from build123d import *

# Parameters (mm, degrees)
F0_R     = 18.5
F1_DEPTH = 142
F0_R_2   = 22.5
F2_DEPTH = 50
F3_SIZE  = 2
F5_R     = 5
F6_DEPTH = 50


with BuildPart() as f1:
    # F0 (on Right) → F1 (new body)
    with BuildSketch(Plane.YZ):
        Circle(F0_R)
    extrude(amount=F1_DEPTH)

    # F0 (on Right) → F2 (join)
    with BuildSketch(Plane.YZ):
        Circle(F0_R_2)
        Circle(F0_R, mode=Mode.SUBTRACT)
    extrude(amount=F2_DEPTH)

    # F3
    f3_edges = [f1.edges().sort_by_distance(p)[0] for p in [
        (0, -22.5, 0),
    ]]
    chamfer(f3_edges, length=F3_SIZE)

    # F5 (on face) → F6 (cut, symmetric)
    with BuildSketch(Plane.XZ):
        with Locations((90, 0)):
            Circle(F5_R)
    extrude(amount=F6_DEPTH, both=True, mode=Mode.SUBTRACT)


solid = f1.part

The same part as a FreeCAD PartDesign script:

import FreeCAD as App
import Part
import Sketcher

V = App.Vector
Q = App.Units.Quantity


def edges_at(feature, points):
    """Names of the edges that pass closest to the given points."""
    edges = feature.Shape.Edges
    near = lambda p: min(range(len(edges)), key=lambda i: edges[i].distToShape(Part.Vertex(*p))[0])
    return sorted({f"Edge{near(p) + 1}" for p in points})

doc = App.newDocument("Part")
body = doc.addObject("PartDesign::Body", "Body")

# Sketch on YZ plane
sketch1 = body.newObject("Sketcher::SketchObject", "Sketch")
sketch1.AttachmentSupport = (doc.getObject("YZ_Plane"), [""])
sketch1.MapMode = "FlatFace"
sketch1.addGeometry(Part.Circle(V(0, 0, 0), V(0, 0, 1), 18.5), False)
sketch1.addConstraint(Sketcher.Constraint("Coincident", 0, 3, -1, 1))
sketch1.addConstraint(Sketcher.Constraint("Diameter", 0, Q("37 mm")))
pad1 = body.newObject("PartDesign::Pad", "Pad")
pad1.Profile = sketch1
pad1.Length = 142

# Sketch on YZ plane
sketch2 = body.newObject("Sketcher::SketchObject", "Sketch001")
sketch2.AttachmentSupport = (doc.getObject("YZ_Plane"), [""])
sketch2.MapMode = "FlatFace"
sketch2.addGeometry(Part.Circle(V(0, 0, 0), V(0, 0, 1), 22.5), False)
sketch2.addGeometry(Part.Circle(V(0, 0, 0), V(0, 0, 1), 18.5), False)
sketch2.addConstraint(Sketcher.Constraint("Coincident", 0, 3, -1, 1))
sketch2.addConstraint(Sketcher.Constraint("Coincident", 1, 3, -1, 1))
sketch2.addConstraint(Sketcher.Constraint("Diameter", 0, Q("45 mm")))
sketch2.addConstraint(Sketcher.Constraint("Diameter", 1, Q("37 mm")))
pad2 = body.newObject("PartDesign::Pad", "Pad001")
pad2.Profile = sketch2
pad2.Length = 50
doc.recompute()

chamfer = body.newObject("PartDesign::Chamfer", "Chamfer")
chamfer.Base = (pad2, edges_at(pad2, [(0, -22.5, 0)]))
chamfer.Size = 2

# Sketch on XZ plane
sketch3 = body.newObject("Sketcher::SketchObject", "Sketch002")
sketch3.AttachmentSupport = (doc.getObject("XZ_Plane"), [""])
sketch3.MapMode = "FlatFace"
sketch3.addGeometry(Part.Circle(V(90, 0, 0), V(0, 0, 1), 5), False)
sketch3.addConstraint(Sketcher.Constraint("PointOnObject", 0, 3, -1))
sketch3.addConstraint(Sketcher.Constraint("Diameter", 0, Q("10 mm")))
sketch3.addConstraint(Sketcher.Constraint("DistanceX", -1, 1, 0, 3, Q("90 mm")))
pocket1 = body.newObject("PartDesign::Pocket", "Pocket")
pocket1.Profile = sketch3
pocket1.Length = 100
pocket1.Midplane = True

doc.recompute()
